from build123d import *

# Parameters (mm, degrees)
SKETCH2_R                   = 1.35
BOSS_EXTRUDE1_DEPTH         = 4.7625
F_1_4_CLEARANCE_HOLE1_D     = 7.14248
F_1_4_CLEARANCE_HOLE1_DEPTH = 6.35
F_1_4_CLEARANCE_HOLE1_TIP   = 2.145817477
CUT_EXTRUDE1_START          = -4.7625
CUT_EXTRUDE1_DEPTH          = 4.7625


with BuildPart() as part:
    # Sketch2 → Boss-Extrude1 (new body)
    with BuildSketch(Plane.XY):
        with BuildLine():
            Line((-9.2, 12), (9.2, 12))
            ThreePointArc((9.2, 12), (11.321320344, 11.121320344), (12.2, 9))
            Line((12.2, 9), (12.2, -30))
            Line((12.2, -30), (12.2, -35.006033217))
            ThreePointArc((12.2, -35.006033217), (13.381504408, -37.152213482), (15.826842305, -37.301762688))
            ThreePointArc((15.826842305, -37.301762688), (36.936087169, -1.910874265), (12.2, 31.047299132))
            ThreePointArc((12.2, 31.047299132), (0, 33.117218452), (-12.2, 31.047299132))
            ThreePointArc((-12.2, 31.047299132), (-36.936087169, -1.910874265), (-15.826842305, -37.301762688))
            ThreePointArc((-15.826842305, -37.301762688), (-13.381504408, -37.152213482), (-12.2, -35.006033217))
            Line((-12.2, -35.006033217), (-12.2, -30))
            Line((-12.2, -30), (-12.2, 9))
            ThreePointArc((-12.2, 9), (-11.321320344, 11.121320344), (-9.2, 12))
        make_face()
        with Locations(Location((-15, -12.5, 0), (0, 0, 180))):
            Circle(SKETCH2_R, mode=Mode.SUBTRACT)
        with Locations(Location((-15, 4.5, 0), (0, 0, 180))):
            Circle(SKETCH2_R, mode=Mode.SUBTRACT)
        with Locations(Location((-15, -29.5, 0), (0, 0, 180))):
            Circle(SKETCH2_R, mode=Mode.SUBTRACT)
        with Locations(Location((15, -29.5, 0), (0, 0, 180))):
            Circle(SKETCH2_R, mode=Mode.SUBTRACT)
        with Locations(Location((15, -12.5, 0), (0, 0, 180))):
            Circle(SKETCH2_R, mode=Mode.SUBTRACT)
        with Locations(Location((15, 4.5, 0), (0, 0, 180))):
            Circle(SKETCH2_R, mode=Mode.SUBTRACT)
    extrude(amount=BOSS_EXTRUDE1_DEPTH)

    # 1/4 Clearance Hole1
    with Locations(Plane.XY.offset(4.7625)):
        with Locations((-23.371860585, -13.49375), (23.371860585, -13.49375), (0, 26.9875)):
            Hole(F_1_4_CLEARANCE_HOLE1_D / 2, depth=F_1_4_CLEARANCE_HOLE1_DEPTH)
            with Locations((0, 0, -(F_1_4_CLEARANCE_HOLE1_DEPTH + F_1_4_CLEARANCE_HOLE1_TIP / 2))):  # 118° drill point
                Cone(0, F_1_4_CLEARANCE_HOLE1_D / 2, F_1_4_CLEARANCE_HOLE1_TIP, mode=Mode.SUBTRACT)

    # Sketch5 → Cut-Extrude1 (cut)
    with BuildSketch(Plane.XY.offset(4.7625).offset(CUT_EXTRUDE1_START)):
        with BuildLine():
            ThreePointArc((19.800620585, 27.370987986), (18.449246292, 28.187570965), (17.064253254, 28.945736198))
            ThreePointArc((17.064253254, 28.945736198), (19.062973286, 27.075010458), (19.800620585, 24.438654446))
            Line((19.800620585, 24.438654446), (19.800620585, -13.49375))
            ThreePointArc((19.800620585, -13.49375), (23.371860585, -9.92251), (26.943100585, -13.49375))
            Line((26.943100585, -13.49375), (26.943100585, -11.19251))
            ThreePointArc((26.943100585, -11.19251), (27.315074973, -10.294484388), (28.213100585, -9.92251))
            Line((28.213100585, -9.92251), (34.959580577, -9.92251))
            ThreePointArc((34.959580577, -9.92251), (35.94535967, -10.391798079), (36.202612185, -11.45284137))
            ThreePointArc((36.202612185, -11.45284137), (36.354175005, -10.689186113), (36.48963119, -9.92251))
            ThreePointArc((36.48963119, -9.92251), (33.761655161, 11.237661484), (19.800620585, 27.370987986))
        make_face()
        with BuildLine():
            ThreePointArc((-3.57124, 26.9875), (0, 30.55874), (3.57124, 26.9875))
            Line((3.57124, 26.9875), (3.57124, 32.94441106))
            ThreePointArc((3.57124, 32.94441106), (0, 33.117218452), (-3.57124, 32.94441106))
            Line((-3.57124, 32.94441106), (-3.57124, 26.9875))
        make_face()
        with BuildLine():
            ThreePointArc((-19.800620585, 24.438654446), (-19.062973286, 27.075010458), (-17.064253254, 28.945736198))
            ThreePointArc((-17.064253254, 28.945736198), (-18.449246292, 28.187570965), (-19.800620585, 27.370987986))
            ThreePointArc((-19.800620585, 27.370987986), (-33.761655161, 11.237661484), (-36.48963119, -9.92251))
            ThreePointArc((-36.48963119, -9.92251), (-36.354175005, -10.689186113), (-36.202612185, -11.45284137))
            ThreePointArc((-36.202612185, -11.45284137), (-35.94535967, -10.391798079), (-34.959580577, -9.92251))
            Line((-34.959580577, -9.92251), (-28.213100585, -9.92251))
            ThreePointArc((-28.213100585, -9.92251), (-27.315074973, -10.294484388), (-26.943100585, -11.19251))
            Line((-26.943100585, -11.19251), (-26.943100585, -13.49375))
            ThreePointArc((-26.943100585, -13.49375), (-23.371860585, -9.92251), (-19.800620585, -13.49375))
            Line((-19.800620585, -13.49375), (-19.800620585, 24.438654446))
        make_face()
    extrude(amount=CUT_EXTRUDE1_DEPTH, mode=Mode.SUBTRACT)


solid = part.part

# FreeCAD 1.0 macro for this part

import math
import FreeCAD as App
import Part
import Sketcher

V = App.Vector
Q = App.Units.Quantity

doc = App.newDocument("Part")
body = doc.addObject("PartDesign::Body", "Body")

# Sketch on XY plane
sketch1 = body.newObject("Sketcher::SketchObject", "Sketch")
sketch1.AttachmentSupport = (doc.getObject("XY_Plane"), [""])
sketch1.MapMode = "FlatFace"
sketch1.addGeometry(Part.LineSegment(V(-9.2, 12, 0), V(9.2, 12, 0)), False)
sketch1.addGeometry(Part.ArcOfCircle(Part.Circle(V(9.2, 9, 0), V(0, 0, 1), 3), math.radians(0), math.radians(90)), False)
sketch1.addGeometry(Part.LineSegment(V(12.2, 9, 0), V(12.2, -35.006033, 0)), False)
sketch1.addGeometry(Part.ArcOfCircle(Part.Circle(V(14.74, -35.006033, 0), V(0, 0, 1), 2.54), math.radians(180), math.radians(295.333771)), False)
sketch1.addGeometry(Part.ArcOfCircle(Part.Circle(V(0, -3.870833, 0), V(0, 0, 1), 36.988052), math.radians(-64.666229), math.radians(70.741164)), False)
sketch1.addGeometry(Part.ArcOfCircle(Part.Circle(V(0, -3.870833, 0), V(0, 0, 1), 36.988052), math.radians(70.741164), math.radians(109.258836)), False)
sketch1.addGeometry(Part.ArcOfCircle(Part.Circle(V(0, -3.870833, 0), V(0, 0, 1), 36.988052), math.radians(109.258836), math.radians(244.666229)), False)
sketch1.addGeometry(Part.ArcOfCircle(Part.Circle(V(-14.74, -35.006033, 0), V(0, 0, 1), 2.54), math.radians(-115.333771), math.radians(0)), False)
sketch1.addGeometry(Part.LineSegment(V(-12.2, -35.006033, 0), V(-12.2, 9, 0)), False)
sketch1.addGeometry(Part.ArcOfCircle(Part.Circle(V(-9.2, 9, 0), V(0, 0, 1), 3), math.radians(90), math.radians(180)), False)
sketch1.addGeometry(Part.Circle(V(-15, -29.5, 0), V(0, 0, 1), 1.35), False)
sketch1.addGeometry(Part.Circle(V(15, -29.5, 0), V(0, 0, 1), 1.35), False)
sketch1.addGeometry(Part.Circle(V(-15, -12.5, 0), V(0, 0, 1), 1.35), False)
sketch1.addGeometry(Part.Circle(V(-15, 4.5, 0), V(0, 0, 1), 1.35), False)
sketch1.addGeometry(Part.Circle(V(15, -12.5, 0), V(0, 0, 1), 1.35), False)
sketch1.addGeometry(Part.Circle(V(15, 4.5, 0), V(0, 0, 1), 1.35), False)
sketch1.addConstraint(Sketcher.Constraint("Tangent", 0, 2, 1, 2))
sketch1.addConstraint(Sketcher.Constraint("Tangent", 1, 1, 2, 1))
sketch1.addConstraint(Sketcher.Constraint("Tangent", 2, 2, 3, 1))
sketch1.addConstraint(Sketcher.Constraint("Tangent", 3, 2, 4, 1))
sketch1.addConstraint(Sketcher.Constraint("Tangent", 4, 2, 5, 1))
sketch1.addConstraint(Sketcher.Constraint("Tangent", 5, 2, 6, 1))
sketch1.addConstraint(Sketcher.Constraint("Tangent", 6, 2, 7, 1))
sketch1.addConstraint(Sketcher.Constraint("Tangent", 7, 2, 8, 1))
sketch1.addConstraint(Sketcher.Constraint("Tangent", 8, 2, 9, 2))
sketch1.addConstraint(Sketcher.Constraint("Tangent", 9, 1, 0, 1))
sketch1.addConstraint(Sketcher.Constraint("Horizontal", 0))
sketch1.addConstraint(Sketcher.Constraint("Vertical", 2))
sketch1.addConstraint(Sketcher.Constraint("Vertical", 8))
sketch1.addConstraint(Sketcher.Constraint("Coincident", 6, 3, 4, 3))
sketch1.addConstraint(Sketcher.Constraint("Equal", 3, 7))
sketch1.addConstraint(Sketcher.Constraint("Equal", 1, 9))
sketch1.addConstraint(Sketcher.Constraint("Equal", 10, 11))
sketch1.addConstraint(Sketcher.Constraint("Equal", 11, 12))
sketch1.addConstraint(Sketcher.Constraint("Equal", 12, 13))
sketch1.addConstraint(Sketcher.Constraint("Equal", 13, 14))
sketch1.addConstraint(Sketcher.Constraint("Equal", 14, 15))
sketch1.addConstraint(Sketcher.Constraint("Symmetric", 3, 3, 7, 3, -2))
sketch1.addConstraint(Sketcher.Constraint("Symmetric", 10, 3, 11, 3, -2))
sketch1.addConstraint(Sketcher.Constraint("Symmetric", 12, 3, 14, 3, -2))
sketch1.addConstraint(Sketcher.Constraint("Symmetric", 13, 3, 15, 3, -2))
sketch1.addConstraint(Sketcher.Constraint("Horizontal", 4, 2, 5, 2))
sketch1.addConstraint(Sketcher.Constraint("Vertical", 10, 3, 12, 3))
sketch1.addConstraint(Sketcher.Constraint("Vertical", 12, 3, 13, 3))
sketch1.addConstraint(Sketcher.Constraint("Vertical", 2, 2, 4, 2))
sketch1.addConstraint(Sketcher.Constraint("Radius", 3, Q("0.1 in")))
sketch1.addConstraint(Sketcher.Constraint("Diameter", 10, 2.7))
sketch1.addConstraint(Sketcher.Constraint("Radius", 1, 3.0))
sketch1.addConstraint(Sketcher.Constraint("Radius", 4, 36.988052))
sketch1.addConstraint(Sketcher.Constraint("DistanceX", 0, 1, 0, 2, 18.4))
sketch1.addConstraint(Sketcher.Constraint("DistanceY", -1, 1, 1, 3, 9.0))
sketch1.addConstraint(Sketcher.Constraint("DistanceX", 10, 3, -1, 1, 15.0))
sketch1.addConstraint(Sketcher.Constraint("DistanceY", 10, 3, -1, 1, 29.5))
sketch1.addConstraint(Sketcher.Constraint("DistanceY", 12, 3, -1, 1, 12.5))
sketch1.addConstraint(Sketcher.Constraint("DistanceY", -1, 1, 13, 3, 4.5))
sketch1.addConstraint(Sketcher.Constraint("DistanceY", -1, 1, 4, 2, 31.047299))
pad1 = body.newObject("PartDesign::Pad", "Pad")
pad1.Profile = sketch1
pad1.Length = Q("0.1875 in")

# Sketch on XY plane
sketch2 = body.newObject("Sketcher::SketchObject", "Sketch001")
sketch2.AttachmentSupport = (doc.getObject("XY_Plane"), [""])
sketch2.MapMode = "FlatFace"
sketch2.AttachmentOffset = App.Placement(V(0, 0, 0.1875 * 25.4), App.Rotation())
sketch2.addGeometry(Part.Circle(V(-23.371861, -13.49375, 0), V(0, 0, 1), 3.57124), False)
sketch2.addGeometry(Part.Circle(V(23.371861, -13.49375, 0), V(0, 0, 1), 3.57124), False)
sketch2.addGeometry(Part.Circle(V(0, 26.9875, 0), V(0, 0, 1), 3.57124), False)
sketch2.addConstraint(Sketcher.Constraint("Equal", 0, 1))
sketch2.addConstraint(Sketcher.Constraint("Equal", 1, 2))
sketch2.addConstraint(Sketcher.Constraint("Symmetric", 0, 3, 1, 3, -2))
sketch2.addConstraint(Sketcher.Constraint("PointOnObject", 2, 3, -2))
sketch2.addConstraint(Sketcher.Constraint("Diameter", 0, Q("0.2812 in")))
sketch2.addConstraint(Sketcher.Constraint("DistanceY", 0, 3, -1, 1, Q("0.53125 in")))
sketch2.addConstraint(Sketcher.Constraint("DistanceY", -1, 1, 2, 3, Q("1.0625 in")))
sketch2.addConstraint(Sketcher.Constraint("DistanceX", 0, 3, -1, 1, 23.371861))
doc.recompute()
hole = body.newObject("PartDesign::Hole", "Hole")
hole.Profile = sketch2
hole.ThreadType = "None"
hole.Diameter = Q("0.2812 in")
hole.DepthType = "Dimension"
hole.Depth = Q("0.25 in")
hole.DrillPoint = "Angled"
hole.DrillPointAngle = 118

# Sketch on XY plane
sketch3 = body.newObject("Sketcher::SketchObject", "Sketch002")
sketch3.AttachmentSupport = (doc.getObject("XY_Plane"), [""])
sketch3.MapMode = "FlatFace"
sketch3.addGeometry(Part.ArcOfCircle(Part.Circle(V(0, -3.870833, 0), V(0, 0, 1), 36.988052), math.radians(57.63406), math.radians(62.526067)), False)
sketch3.addGeometry(Part.ArcOfCircle(Part.Circle(V(14.720621, 24.438654, 0), V(0, 0, 1), 5.08), math.radians(0), math.radians(62.526067)), False)
sketch3.addGeometry(Part.LineSegment(V(19.800621, 24.438654, 0), V(19.800621, -13.49375, 0)), False)
sketch3.addGeometry(Part.ArcOfCircle(Part.Circle(V(23.371861, -13.49375, 0), V(0, 0, 1), 3.57124), math.radians(0), math.radians(180)), False)
sketch3.addGeometry(Part.LineSegment(V(26.943101, -13.49375, 0), V(26.943101, -11.19251, 0)), False)
sketch3.addGeometry(Part.ArcOfCircle(Part.Circle(V(28.213101, -11.19251, 0), V(0, 0, 1), 1.27), math.radians(90), math.radians(180)), False)
sketch3.addGeometry(Part.LineSegment(V(28.213101, -9.92251, 0), V(34.959581, -9.92251, 0)), False)
sketch3.addGeometry(Part.ArcOfCircle(Part.Circle(V(34.959581, -11.19251, 0), V(0, 0, 1), 1.27), math.radians(-11.82864), math.radians(90)), False)
sketch3.addGeometry(Part.ArcOfCircle(Part.Circle(V(0.000003, -3.870834, 0), V(0, 0, 1), 36.988049), math.radians(-11.82864), math.radians(-9.416593)), False)
sketch3.addGeometry(Part.ArcOfCircle(Part.Circle(V(0, -3.870833, 0), V(0, 0, 1), 36.988052), math.radians(-9.416593), math.radians(57.63406)), False)
sketch3.addGeometry(Part.ArcOfCircle(Part.Circle(V(0, 26.9875, 0), V(0, 0, 1), 3.57124), math.radians(0), math.radians(180)), False)
sketch3.addGeometry(Part.LineSegment(V(3.57124, 26.9875, 0), V(3.57124, 32.944411, 0)), False)
sketch3.addGeometry(Part.ArcOfCircle(Part.Circle(V(0, -3.870833, 0), V(0, 0, 1), 36.988052), math.radians(84.459394), math.radians(95.540606)), False)
sketch3.addGeometry(Part.LineSegment(V(-3.57124, 32.944411, 0), V(-3.57124, 26.9875, 0)), False)
sketch3.addGeometry(Part.ArcOfCircle(Part.Circle(V(-14.720621, 24.438654, 0), V(0, 0, 1), 5.08), math.radians(117.473933), math.radians(180)), False)
sketch3.addGeometry(Part.ArcOfCircle(Part.Circle(V(0, -3.870833, 0), V(0, 0, 1), 36.988052), math.radians(117.473933), math.radians(122.36594)), False)
sketch3.addGeometry(Part.ArcOfCircle(Part.Circle(V(0, -3.870833, 0), V(0, 0, 1), 36.988052), math.radians(122.36594), math.radians(189.416593)), False)
sketch3.addGeometry(Part.ArcOfCircle(Part.Circle(V(-0.000003, -3.870834, 0), V(0, 0, 1), 36.988049), math.radians(-170.583407), math.radians(-168.17136)), False)
sketch3.addGeometry(Part.ArcOfCircle(Part.Circle(V(-34.959581, -11.19251, 0), V(0, 0, 1), 1.27), math.radians(90), math.radians(191.82864)), False)
sketch3.addGeometry(Part.LineSegment(V(-34.959581, -9.92251, 0), V(-28.213101, -9.92251, 0)), False)
sketch3.addGeometry(Part.ArcOfCircle(Part.Circle(V(-28.213101, -11.19251, 0), V(0, 0, 1), 1.27), math.radians(0), math.radians(90)), False)
sketch3.addGeometry(Part.LineSegment(V(-26.943101, -11.19251, 0), V(-26.943101, -13.49375, 0)), False)
sketch3.addGeometry(Part.ArcOfCircle(Part.Circle(V(-23.371861, -13.49375, 0), V(0, 0, 1), 3.57124), math.radians(0), math.radians(180)), False)
sketch3.addGeometry(Part.LineSegment(V(-19.800621, -13.49375, 0), V(-19.800621, 24.438654, 0)), False)
sketch3.addConstraint(Sketcher.Constraint("Coincident", 0, 2, 1, 2))
sketch3.addConstraint(Sketcher.Constraint("Coincident", 1, 1, 2, 1))
sketch3.addConstraint(Sketcher.Constraint("Coincident", 2, 2, 3, 2))
sketch3.addConstraint(Sketcher.Constraint("Coincident", 3, 1, 4, 1))
sketch3.addConstraint(Sketcher.Constraint("Coincident", 4, 2, 5, 2))
sketch3.addConstraint(Sketcher.Constraint("Coincident", 5, 1, 6, 1))
sketch3.addConstraint(Sketcher.Constraint("Coincident", 6, 2, 7, 2))
sketch3.addConstraint(Sketcher.Constraint("Coincident", 7, 1, 8, 1))
sketch3.addConstraint(Sketcher.Constraint("Coincident", 8, 2, 9, 1))
sketch3.addConstraint(Sketcher.Constraint("Coincident", 9, 2, 0, 1))
sketch3.addConstraint(Sketcher.Constraint("Coincident", 10, 1, 11, 1))
sketch3.addConstraint(Sketcher.Constraint("Coincident", 11, 2, 12, 1))
sketch3.addConstraint(Sketcher.Constraint("Coincident", 12, 2, 13, 1))
sketch3.addConstraint(Sketcher.Constraint("Coincident", 13, 2, 10, 2))
sketch3.addConstraint(Sketcher.Constraint("Coincident", 14, 1, 15, 1))
sketch3.addConstraint(Sketcher.Constraint("Coincident", 15, 2, 16, 1))
sketch3.addConstraint(Sketcher.Constraint("Coincident", 16, 2, 17, 1))
sketch3.addConstraint(Sketcher.Constraint("Coincident", 17, 2, 18, 2))
sketch3.addConstraint(Sketcher.Constraint("Coincident", 18, 1, 19, 1))
sketch3.addConstraint(Sketcher.Constraint("Coincident", 19, 2, 20, 2))
sketch3.addConstraint(Sketcher.Constraint("Coincident", 20, 1, 21, 1))
sketch3.addConstraint(Sketcher.Constraint("Coincident", 21, 2, 22, 2))
sketch3.addConstraint(Sketcher.Constraint("Coincident", 22, 1, 23, 1))
sketch3.addConstraint(Sketcher.Constraint("Coincident", 23, 2, 14, 2))
sketch3.addConstraint(Sketcher.Constraint("Vertical", 2))
sketch3.addConstraint(Sketcher.Constraint("Vertical", 4))
sketch3.addConstraint(Sketcher.Constraint("Horizontal", 6))
sketch3.addConstraint(Sketcher.Constraint("Vertical", 11))
sketch3.addConstraint(Sketcher.Constraint("Vertical", 13))
sketch3.addConstraint(Sketcher.Constraint("Horizontal", 19))
sketch3.addConstraint(Sketcher.Constraint("Vertical", 21))
sketch3.addConstraint(Sketcher.Constraint("Vertical", 23))
sketch3.addConstraint(Sketcher.Constraint("Coincident", 8, 3, 0, 3))
sketch3.addConstraint(Sketcher.Constraint("Coincident", 9, 3, 0, 3))
sketch3.addConstraint(Sketcher.Constraint("Coincident", 12, 3, 0, 3))
sketch3.addConstraint(Sketcher.Constraint("Coincident", 15, 3, 0, 3))
sketch3.addConstraint(Sketcher.Constraint("Coincident", 16, 3, 0, 3))
sketch3.addConstraint(Sketcher.Constraint("Coincident", 17, 3, 0, 3))
sketch3.addConstraint(Sketcher.Constraint("PointOnObject", 0, 3, -2))
sketch3.addConstraint(Sketcher.Constraint("PointOnObject", 10, 3, -2))
sketch3.addConstraint(Sketcher.Constraint("Radius", 1, Q("0.2 in")))
sketch3.addConstraint(Sketcher.Constraint("Radius", 14, Q("0.2 in")))
sketch3.addConstraint(Sketcher.Constraint("Radius", 5, Q("0.05 in")))
sketch3.addConstraint(Sketcher.Constraint("Radius", 7, Q("0.05 in")))
sketch3.addConstraint(Sketcher.Constraint("Radius", 18, Q("0.05 in")))
sketch3.addConstraint(Sketcher.Constraint("Radius", 20, Q("0.05 in")))
sketch3.addConstraint(Sketcher.Constraint("Radius", 3, Q("0.1406 in")))
sketch3.addConstraint(Sketcher.Constraint("Radius", 10, Q("0.1406 in")))
sketch3.addConstraint(Sketcher.Constraint("Radius", 22, Q("0.1406 in")))
sketch3.addConstraint(Sketcher.Constraint("DistanceX", 1, 3, 9, 2, Q("0.2 in")))
sketch3.addConstraint(Sketcher.Constraint("DistanceX", 15, 2, 14, 3, Q("0.2 in")))
sketch3.addConstraint(Sketcher.Constraint("DistanceX", 4, 2, 5, 1, Q("0.05 in")))
sketch3.addConstraint(Sketcher.Constraint("DistanceY", 4, 2, 5, 1, Q("0.05 in")))
sketch3.addConstraint(Sketcher.Constraint("DistanceY", 7, 3, 8, 2, Q("0.05 in")))
sketch3.addConstraint(Sketcher.Constraint("DistanceY", 18, 3, 16, 2, Q("0.05 in")))
sketch3.addConstraint(Sketcher.Constraint("DistanceX", 19, 2, 20, 1, Q("0.05 in")))
sketch3.addConstraint(Sketcher.Constraint("DistanceY", 20, 1, 19, 2, Q("0.05 in")))
sketch3.addConstraint(Sketcher.Constraint("DistanceY", 4, 1, 4, 2, Q("0.0906 in")))
sketch3.addConstraint(Sketcher.Constraint("DistanceY", 21, 2, 21, 1, Q("0.0906 in")))
sketch3.addConstraint(Sketcher.Constraint("DistanceY", 3, 3, -1, 1, Q("0.53125 in")))
sketch3.addConstraint(Sketcher.Constraint("DistanceY", -1, 1, 10, 3, Q("1.0625 in")))
sketch3.addConstraint(Sketcher.Constraint("DistanceY", 22, 3, -1, 1, Q("0.53125 in")))
sketch3.addConstraint(Sketcher.Constraint("DistanceY", 2, 2, -1, 1, Q("0.53125 in")))
sketch3.addConstraint(Sketcher.Constraint("DistanceY", 3, 1, -1, 1, Q("0.53125 in")))
sketch3.addConstraint(Sketcher.Constraint("DistanceY", -1, 1, 10, 1, Q("1.0625 in")))
sketch3.addConstraint(Sketcher.Constraint("DistanceY", -1, 1, 13, 2, Q("1.0625 in")))
sketch3.addConstraint(Sketcher.Constraint("DistanceY", 21, 2, -1, 1, Q("0.53125 in")))
sketch3.addConstraint(Sketcher.Constraint("DistanceY", 22, 1, -1, 1, Q("0.53125 in")))
sketch3.addConstraint(Sketcher.Constraint("Radius", 0, 36.988052))
sketch3.addConstraint(Sketcher.Constraint("Radius", 12, 36.988052))
sketch3.addConstraint(Sketcher.Constraint("Radius", 15, 36.988052))
sketch3.addConstraint(Sketcher.Constraint("DistanceX", 7, 1, 8, 2, Q("0.0113 in")))
sketch3.addConstraint(Sketcher.Constraint("DistanceX", 16, 2, 17, 2, Q("0.0113 in")))
sketch3.addConstraint(Sketcher.Constraint("DistanceX", 6, 1, 6, 2, 6.74648))
sketch3.addConstraint(Sketcher.Constraint("DistanceX", 19, 1, 19, 2, 6.74648))
sketch3.addConstraint(Sketcher.Constraint("DistanceY", 11, 1, 11, 2, 5.956911))
sketch3.addConstraint(Sketcher.Constraint("DistanceX", -1, 1, 5, 3, 28.213101))
sketch3.addConstraint(Sketcher.Constraint("DistanceX", 20, 3, -1, 1, 28.213101))
sketch3.addConstraint(Sketcher.Constraint("DistanceY", 2, 2, 2, 1, 37.932404))
sketch3.addConstraint(Sketcher.Constraint("DistanceY", 23, 1, 23, 2, 37.932404))
sketch3.addConstraint(Sketcher.Constraint("DistanceY", 1, 3, 0, 2, 4.507082))
sketch3.addConstraint(Sketcher.Constraint("DistanceY", 14, 3, 14, 1, 4.507082))
pocket1 = body.newObject("PartDesign::Pocket", "Pocket")
pocket1.Profile = sketch3
pocket1.Length = Q("0.1875 in")
pocket1.Reversed = True

doc.recompute()
